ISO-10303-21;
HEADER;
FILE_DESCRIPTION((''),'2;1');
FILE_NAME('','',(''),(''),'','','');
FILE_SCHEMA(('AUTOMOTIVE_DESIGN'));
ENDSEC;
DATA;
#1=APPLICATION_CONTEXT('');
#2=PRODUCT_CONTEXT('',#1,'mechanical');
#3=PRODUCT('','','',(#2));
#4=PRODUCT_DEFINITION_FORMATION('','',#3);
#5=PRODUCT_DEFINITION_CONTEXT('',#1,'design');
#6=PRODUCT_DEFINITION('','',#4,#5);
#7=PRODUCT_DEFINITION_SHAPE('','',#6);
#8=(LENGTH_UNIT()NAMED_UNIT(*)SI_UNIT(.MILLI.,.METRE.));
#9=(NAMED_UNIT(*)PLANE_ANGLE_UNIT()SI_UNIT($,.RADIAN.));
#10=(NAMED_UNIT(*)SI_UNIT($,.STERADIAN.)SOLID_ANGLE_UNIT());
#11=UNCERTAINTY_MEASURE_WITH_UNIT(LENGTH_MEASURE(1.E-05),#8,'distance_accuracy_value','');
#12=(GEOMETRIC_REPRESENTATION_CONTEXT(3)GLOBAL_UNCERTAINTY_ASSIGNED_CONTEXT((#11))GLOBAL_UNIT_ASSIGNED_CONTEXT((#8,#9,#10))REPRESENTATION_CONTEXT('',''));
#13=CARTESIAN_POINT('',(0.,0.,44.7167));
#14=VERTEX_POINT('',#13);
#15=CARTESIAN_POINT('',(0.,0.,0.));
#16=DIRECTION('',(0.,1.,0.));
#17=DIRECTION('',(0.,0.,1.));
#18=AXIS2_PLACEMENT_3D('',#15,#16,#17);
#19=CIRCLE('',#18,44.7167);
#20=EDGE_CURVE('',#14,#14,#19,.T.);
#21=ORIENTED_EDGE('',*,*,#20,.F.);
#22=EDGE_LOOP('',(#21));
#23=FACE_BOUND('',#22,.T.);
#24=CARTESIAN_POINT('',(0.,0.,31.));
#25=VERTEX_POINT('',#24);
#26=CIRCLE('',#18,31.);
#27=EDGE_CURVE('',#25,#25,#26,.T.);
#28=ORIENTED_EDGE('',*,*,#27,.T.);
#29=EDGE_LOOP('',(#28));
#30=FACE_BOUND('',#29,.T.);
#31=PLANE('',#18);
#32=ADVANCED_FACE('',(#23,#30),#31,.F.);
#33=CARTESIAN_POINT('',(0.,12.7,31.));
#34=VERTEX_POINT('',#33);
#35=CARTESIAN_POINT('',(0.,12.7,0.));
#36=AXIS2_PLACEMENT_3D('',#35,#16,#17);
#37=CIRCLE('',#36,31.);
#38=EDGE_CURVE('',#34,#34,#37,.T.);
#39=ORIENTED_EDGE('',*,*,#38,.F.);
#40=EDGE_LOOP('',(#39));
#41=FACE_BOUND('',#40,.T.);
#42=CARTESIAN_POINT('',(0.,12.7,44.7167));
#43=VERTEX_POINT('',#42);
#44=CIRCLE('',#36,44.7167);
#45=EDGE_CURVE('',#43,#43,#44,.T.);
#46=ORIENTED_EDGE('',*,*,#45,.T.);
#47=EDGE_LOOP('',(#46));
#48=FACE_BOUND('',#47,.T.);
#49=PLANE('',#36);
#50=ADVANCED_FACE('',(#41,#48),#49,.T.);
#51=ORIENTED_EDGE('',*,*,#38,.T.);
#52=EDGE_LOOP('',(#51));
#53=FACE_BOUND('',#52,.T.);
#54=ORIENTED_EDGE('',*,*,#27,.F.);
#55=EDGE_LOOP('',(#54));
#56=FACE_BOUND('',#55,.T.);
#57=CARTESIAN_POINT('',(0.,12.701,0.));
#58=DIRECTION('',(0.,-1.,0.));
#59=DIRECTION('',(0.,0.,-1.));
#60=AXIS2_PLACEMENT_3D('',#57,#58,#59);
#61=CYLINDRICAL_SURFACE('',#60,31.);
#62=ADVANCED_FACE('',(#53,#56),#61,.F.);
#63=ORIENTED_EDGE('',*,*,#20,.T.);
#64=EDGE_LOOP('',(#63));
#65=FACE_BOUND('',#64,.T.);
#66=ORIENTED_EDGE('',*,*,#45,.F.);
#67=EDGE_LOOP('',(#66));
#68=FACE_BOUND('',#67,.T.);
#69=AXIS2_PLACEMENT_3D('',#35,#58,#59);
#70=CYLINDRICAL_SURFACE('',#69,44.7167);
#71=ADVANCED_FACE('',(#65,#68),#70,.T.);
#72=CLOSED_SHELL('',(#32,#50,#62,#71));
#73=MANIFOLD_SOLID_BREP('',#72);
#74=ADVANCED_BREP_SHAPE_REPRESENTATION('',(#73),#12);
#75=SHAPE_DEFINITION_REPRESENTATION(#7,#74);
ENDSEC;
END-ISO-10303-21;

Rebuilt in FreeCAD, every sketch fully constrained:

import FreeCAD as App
import Part
import Sketcher

V = App.Vector
Q = App.Units.Quantity

doc = App.newDocument("Part")
body = doc.addObject("PartDesign::Body", "Body")

sketch1 = body.newObject("Sketcher::SketchObject", "Sketch")
sketch1.AttachmentSupport = (doc.getObject("XZ_Plane"), [""])
sketch1.MapMode = "FlatFace"
sketch1.addGeometry(Part.Circle(V(0, 0, 0), V(0, 0, 1), 44.7167), False)
sketch1.addConstraint(Sketcher.Constraint("Coincident", 0, 3, -1, 1))
sketch1.addConstraint(Sketcher.Constraint("Diameter", 0, Q("3.521 in")))
pad1 = body.newObject("PartDesign::Pad", "Pad")
pad1.Profile = sketch1
pad1.Length = Q("0.5 in")
pad1.Reversed = True

sketch2 = body.newObject("Sketcher::SketchObject", "Sketch001")
sketch2.AttachmentSupport = (doc.getObject("XZ_Plane"), [""])
sketch2.MapMode = "FlatFace"
sketch2.addGeometry(Part.Circle(V(0, 0, 0), V(0, 0, 1), 31), False)
sketch2.addConstraint(Sketcher.Constraint("Coincident", 0, 3, -1, 1))
sketch2.addConstraint(Sketcher.Constraint("Diameter", 0, Q("62 mm")))
pocket1 = body.newObject("PartDesign::Pocket", "Pocket")
pocket1.Profile = sketch2
pocket1.Type = "UpToFirst"

doc.recompute()
